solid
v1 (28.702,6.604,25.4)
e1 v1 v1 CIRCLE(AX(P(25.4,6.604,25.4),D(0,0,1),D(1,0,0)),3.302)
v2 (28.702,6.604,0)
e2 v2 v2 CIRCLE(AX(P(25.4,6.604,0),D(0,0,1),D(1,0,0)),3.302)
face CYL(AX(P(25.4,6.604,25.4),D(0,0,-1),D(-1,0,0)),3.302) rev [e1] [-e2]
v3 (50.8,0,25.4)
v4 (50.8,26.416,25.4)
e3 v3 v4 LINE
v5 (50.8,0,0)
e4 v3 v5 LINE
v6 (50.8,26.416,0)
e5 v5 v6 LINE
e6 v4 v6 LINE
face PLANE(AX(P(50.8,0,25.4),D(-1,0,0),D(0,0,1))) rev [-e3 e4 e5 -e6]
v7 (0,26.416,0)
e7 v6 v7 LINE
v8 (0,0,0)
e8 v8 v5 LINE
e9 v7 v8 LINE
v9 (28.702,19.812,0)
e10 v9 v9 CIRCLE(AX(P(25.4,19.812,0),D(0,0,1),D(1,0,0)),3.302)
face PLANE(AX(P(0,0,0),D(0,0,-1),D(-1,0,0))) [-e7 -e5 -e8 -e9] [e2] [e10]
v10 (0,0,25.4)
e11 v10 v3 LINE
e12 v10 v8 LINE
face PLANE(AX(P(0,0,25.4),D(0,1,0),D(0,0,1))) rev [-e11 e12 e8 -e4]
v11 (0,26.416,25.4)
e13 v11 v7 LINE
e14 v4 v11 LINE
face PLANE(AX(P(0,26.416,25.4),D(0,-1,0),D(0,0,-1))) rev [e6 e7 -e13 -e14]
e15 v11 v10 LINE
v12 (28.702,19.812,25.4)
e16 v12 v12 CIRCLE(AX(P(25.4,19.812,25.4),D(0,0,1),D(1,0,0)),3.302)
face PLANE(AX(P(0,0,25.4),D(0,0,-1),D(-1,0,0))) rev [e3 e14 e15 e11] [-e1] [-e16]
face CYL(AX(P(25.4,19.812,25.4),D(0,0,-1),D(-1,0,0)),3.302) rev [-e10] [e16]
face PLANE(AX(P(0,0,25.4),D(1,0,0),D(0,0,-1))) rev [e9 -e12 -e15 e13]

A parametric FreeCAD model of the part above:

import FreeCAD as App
import Part
import Sketcher
from FreeCAD import Vector
Q = App.Units.Quantity


def add_polygon(sketch, points):
    """Adds a closed chain of lines whose ends are joined by coincident constraints."""
    first, n = sketch.GeometryCount, len(points)
    for a, b in zip(points, points[1:] + points[:1]):
        sketch.addGeometry(Part.LineSegment(App.Vector(*a, 0), App.Vector(*b, 0)), False)
    for i in range(n):
        sketch.addConstraint(Sketcher.Constraint("Coincident", first + i, 2, first + (i + 1) % n, 1))

doc = App.newDocument("Part")
body = doc.addObject("PartDesign::Body", "Body")

sketch1 = doc.addObject("Sketcher::SketchObject", "Sketch")
body.addObject(sketch1)
sketch1.AttachmentSupport = (doc.XY_Plane, [""])
sketch1.MapMode = "FlatFace"
add_polygon(sketch1, [(0, 26.416), (0, 0), (50.8, 0), (50.8, 26.416)])
sketch1.addGeometry(Part.Circle(Vector(25.4, 6.604, 0), Vector(0, 0, 1), 3.302), False)
sketch1.addGeometry(Part.Circle(Vector(25.4, 19.812, 0), Vector(0, 0, 1), 3.302), False)
sketch1.addConstraint([
    Sketcher.Constraint("Vertical", 0),
    Sketcher.Constraint("Horizontal", 1),
    Sketcher.Constraint("Vertical", 2),
    Sketcher.Constraint("Horizontal", 3),
    Sketcher.Constraint("Coincident", 0, 2, -1, 1),
    Sketcher.Constraint("Equal", 4, 5),
    Sketcher.Constraint("Vertical", 4, 3, 5, 3),
    Sketcher.Constraint("Diameter", 4, Q("0.26 in")),
    Sketcher.Constraint("DistanceX", 1, 1, 1, 2, Q("2 in")),
    Sketcher.Constraint("DistanceX", -1, 1, 4, 3, Q("1 in")),
    Sketcher.Constraint("DistanceY", 0, 2, 0, 1, Q("1.04 in")),
    Sketcher.Constraint("DistanceY", -1, 1, 4, 3, Q("0.26 in")),
    Sketcher.Constraint("DistanceY", -1, 1, 5, 3, Q("0.78 in")),
])
pad1 = doc.addObject("PartDesign::Pad", "Pad")
body.addObject(pad1)
pad1.Profile = sketch1
pad1.Length = Q("1 in")

doc.recompute()
